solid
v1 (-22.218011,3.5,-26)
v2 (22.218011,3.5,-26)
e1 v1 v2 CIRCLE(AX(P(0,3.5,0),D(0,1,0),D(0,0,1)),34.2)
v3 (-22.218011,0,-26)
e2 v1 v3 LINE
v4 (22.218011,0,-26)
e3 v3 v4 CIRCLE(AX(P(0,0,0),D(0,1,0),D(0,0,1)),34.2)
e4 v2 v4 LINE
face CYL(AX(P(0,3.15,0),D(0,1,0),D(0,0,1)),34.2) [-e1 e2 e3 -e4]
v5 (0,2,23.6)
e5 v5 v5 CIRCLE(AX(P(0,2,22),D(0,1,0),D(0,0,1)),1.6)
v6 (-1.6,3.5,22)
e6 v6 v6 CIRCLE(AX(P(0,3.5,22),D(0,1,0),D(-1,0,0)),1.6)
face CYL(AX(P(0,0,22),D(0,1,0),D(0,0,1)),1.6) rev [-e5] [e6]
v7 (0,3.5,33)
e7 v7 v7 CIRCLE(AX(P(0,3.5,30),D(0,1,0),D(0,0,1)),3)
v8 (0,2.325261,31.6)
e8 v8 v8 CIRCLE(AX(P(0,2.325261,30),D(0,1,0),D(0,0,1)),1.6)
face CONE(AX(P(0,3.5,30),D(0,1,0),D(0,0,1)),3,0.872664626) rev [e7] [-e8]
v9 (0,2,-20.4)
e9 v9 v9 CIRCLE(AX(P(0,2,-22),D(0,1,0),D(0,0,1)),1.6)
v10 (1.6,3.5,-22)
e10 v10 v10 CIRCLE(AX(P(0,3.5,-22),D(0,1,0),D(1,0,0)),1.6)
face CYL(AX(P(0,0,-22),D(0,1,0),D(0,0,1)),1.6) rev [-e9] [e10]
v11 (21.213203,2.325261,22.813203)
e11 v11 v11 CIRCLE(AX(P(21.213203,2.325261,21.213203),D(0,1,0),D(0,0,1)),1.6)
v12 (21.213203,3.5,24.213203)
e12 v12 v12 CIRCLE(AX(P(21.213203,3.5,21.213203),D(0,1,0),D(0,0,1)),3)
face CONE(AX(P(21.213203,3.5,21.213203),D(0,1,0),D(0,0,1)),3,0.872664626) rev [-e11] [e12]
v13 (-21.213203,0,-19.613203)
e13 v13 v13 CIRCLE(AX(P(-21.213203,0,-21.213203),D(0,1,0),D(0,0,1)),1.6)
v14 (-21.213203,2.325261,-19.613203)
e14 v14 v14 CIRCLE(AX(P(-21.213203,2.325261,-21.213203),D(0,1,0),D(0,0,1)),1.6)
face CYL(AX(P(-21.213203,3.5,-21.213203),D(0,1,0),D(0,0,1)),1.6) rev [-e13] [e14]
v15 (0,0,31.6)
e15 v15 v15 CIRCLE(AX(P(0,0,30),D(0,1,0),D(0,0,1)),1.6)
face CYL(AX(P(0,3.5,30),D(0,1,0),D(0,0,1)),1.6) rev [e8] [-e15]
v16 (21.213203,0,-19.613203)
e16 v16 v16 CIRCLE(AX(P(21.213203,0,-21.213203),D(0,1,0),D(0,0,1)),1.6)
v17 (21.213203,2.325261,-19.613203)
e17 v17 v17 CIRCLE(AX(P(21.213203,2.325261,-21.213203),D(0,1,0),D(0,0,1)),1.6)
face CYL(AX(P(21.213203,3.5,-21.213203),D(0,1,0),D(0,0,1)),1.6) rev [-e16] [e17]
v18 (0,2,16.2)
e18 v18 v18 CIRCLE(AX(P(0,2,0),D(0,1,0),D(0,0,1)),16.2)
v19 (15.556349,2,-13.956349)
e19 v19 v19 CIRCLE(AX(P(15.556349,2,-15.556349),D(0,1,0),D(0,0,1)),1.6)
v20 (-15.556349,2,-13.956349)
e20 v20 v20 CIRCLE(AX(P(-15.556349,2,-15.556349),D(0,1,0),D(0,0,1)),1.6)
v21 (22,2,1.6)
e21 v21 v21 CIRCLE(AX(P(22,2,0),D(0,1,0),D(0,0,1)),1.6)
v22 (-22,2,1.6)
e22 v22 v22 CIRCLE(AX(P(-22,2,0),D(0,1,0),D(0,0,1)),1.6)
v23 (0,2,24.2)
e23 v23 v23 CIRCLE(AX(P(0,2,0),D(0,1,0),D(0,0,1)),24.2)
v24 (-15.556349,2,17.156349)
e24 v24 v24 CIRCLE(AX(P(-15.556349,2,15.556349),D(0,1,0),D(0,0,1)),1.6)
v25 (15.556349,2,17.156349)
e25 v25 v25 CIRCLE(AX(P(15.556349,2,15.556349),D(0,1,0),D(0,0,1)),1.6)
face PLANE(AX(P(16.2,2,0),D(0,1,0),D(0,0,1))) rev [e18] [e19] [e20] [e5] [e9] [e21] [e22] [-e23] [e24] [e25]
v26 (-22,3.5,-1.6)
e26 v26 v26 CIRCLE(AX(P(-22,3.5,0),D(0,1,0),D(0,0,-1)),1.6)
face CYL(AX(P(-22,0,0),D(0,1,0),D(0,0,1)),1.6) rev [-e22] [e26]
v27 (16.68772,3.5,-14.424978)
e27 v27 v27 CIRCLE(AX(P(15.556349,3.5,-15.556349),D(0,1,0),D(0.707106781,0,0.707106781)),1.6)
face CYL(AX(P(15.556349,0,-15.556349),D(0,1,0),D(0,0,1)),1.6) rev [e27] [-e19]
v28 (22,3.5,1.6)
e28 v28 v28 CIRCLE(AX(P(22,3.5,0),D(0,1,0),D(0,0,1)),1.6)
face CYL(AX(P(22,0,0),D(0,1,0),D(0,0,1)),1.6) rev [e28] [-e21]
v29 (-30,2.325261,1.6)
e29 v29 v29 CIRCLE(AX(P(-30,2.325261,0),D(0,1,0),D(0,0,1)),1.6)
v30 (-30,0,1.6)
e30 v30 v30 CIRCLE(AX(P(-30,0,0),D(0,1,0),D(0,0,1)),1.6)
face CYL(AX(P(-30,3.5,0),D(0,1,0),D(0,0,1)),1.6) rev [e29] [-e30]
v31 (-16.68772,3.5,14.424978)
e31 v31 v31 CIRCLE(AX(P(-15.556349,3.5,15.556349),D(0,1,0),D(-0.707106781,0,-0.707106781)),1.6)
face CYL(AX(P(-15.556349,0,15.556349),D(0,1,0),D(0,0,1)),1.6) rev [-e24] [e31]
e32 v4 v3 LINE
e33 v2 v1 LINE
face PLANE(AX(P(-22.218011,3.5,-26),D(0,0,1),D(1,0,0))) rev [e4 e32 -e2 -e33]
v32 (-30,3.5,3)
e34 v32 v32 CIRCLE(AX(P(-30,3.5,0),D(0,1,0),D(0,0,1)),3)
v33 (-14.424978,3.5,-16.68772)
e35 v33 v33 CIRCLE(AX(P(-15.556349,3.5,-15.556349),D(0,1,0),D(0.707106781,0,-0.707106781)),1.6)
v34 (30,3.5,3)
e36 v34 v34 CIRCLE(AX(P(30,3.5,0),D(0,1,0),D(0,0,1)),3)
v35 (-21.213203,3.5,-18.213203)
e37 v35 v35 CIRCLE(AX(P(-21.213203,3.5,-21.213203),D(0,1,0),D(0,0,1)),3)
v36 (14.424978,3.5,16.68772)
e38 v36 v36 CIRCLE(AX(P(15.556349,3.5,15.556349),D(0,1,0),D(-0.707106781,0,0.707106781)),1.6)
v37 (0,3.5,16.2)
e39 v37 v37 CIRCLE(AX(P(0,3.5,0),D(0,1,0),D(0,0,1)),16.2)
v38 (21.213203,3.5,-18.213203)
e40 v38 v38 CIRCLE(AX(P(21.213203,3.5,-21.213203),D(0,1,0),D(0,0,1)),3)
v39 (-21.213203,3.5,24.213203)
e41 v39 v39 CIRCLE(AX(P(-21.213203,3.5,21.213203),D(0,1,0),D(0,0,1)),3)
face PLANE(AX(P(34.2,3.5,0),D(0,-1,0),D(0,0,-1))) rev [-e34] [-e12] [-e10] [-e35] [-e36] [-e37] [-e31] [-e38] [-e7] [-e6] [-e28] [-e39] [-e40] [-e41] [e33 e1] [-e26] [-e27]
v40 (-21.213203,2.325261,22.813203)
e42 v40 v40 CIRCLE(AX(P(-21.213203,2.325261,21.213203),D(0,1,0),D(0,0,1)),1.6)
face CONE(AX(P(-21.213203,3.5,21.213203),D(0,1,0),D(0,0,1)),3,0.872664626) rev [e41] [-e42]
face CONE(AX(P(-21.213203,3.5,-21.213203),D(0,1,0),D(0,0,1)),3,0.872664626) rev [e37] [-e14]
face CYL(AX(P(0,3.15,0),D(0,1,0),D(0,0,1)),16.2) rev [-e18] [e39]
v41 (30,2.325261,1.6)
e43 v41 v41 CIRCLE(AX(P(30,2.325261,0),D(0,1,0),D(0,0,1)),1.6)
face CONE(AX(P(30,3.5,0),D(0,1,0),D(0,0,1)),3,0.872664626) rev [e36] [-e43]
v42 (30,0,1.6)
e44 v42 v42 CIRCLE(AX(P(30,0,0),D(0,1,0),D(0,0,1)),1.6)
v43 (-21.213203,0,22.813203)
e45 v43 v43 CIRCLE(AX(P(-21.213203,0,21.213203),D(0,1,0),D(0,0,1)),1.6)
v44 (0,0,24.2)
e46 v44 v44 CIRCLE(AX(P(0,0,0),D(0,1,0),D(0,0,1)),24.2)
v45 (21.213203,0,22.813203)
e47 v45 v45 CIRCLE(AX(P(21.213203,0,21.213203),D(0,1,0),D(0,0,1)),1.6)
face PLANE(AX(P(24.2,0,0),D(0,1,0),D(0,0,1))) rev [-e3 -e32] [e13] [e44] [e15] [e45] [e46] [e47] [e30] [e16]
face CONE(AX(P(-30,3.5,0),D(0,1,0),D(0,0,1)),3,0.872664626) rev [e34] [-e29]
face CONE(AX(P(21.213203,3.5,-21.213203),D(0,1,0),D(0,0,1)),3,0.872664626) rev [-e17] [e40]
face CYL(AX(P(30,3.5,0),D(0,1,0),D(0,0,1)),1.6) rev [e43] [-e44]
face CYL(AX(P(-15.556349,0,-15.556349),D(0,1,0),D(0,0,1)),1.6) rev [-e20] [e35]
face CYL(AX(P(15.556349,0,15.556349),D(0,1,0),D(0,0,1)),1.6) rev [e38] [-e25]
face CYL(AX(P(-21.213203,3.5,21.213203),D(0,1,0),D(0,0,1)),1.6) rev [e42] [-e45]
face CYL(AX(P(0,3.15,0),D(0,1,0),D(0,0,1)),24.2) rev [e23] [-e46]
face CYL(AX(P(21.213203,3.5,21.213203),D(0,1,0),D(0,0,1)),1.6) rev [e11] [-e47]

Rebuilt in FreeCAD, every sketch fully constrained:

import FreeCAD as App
import Part
import Sketcher

V = App.Vector


def add_polygon(sketch, points):
    """Adds a closed chain of lines whose ends are joined by coincident constraints."""
    first, n = sketch.GeometryCount, len(points)
    for a, b in zip(points, points[1:] + points[:1]):
        sketch.addGeometry(Part.LineSegment(App.Vector(*a, 0), App.Vector(*b, 0)), False)
    for i in range(n):
        sketch.addConstraint(Sketcher.Constraint("Coincident", first + i, 2, first + (i + 1) % n, 1))

doc = App.newDocument("Part")
params = doc.addObject("Spreadsheet::Sheet", "Params")
for row, (alias, value) in enumerate([
    ("sketch1_width", "18 mm"),
    ("sketch1_width2", "8 mm"),
    ("sketch1_height", "2 mm"),
    ("sketch1_height2", "3.5 mm"),
    ("revolution_angle", "360 deg"),
    ("sketch2_diameter", "3.2 mm"),
    ("sketch3_diameter", "3.2 mm"),
    ("hole_diameter", "3.2 mm"),
    ("hole_csink_diameter", "6 mm"),
    ("sketch4_height", "8.2 mm"),
], start=1):
    params.set(f"A{row}", alias)
    params.set(f"B{row}", "=" + value)
    params.setAlias(f"B{row}", alias)

body = doc.addObject("PartDesign::Body", "Body")

# Sketch on XY plane
sketch1 = body.newObject("Sketcher::SketchObject", "Sketch")
sketch1.AttachmentSupport = (doc.getObject("XY_Plane"), [""])
sketch1.MapMode = "FlatFace"
add_polygon(sketch1, [(34.2, 0), (34.2, 3.5), (16.2, 3.5), (16.2, 2), (24.2, 2), (24.2, 0)])  # lines 0-5
sketch1.addConstraint([
    Sketcher.Constraint("Vertical", 0),
    Sketcher.Constraint("Horizontal", 1),
    Sketcher.Constraint("Vertical", 2),
    Sketcher.Constraint("Horizontal", 3),
    Sketcher.Constraint("Vertical", 4),
    Sketcher.Constraint("Horizontal", 5),
    Sketcher.Constraint("PointOnObject", 4, 2, -1),
    Sketcher.Constraint("DistanceX", 1, 2, 1, 1, 18.0),
    Sketcher.Constraint("DistanceX", 3, 1, 3, 2, 8.0),
    Sketcher.Constraint("DistanceY", 4, 2, 4, 1, 2.0),
    Sketcher.Constraint("DistanceY", 0, 1, 0, 2, 3.5),
    Sketcher.Constraint("DistanceX", -1, 1, 0, 2, 34.2),
])
sketch1.setExpression("Constraints[13]", "Params.sketch1_width")
sketch1.setExpression("Constraints[14]", "Params.sketch1_width2")
sketch1.setExpression("Constraints[15]", "Params.sketch1_height")
sketch1.setExpression("Constraints[16]", "Params.sketch1_height2")
revolution = body.newObject("PartDesign::Revolution", "Revolution")
revolution.Profile = sketch1
revolution.ReferenceAxis = (sketch1, ["V_Axis"])
revolution.setExpression("Angle", "Params.revolution_angle")

# Sketch on XZ plane
sketch2 = body.newObject("Sketcher::SketchObject", "Sketch001")
sketch2.AttachmentSupport = (doc.getObject("XZ_Plane"), [""])
sketch2.MapMode = "FlatFace"
sketch2.AttachmentOffset = App.Placement(V(0, 0, -3.5), App.Rotation())
sketch2.addGeometry(Part.Circle(V(22, 0, 0), V(0, 0, 1), 1.6), False)
sketch2.addConstraint([
    Sketcher.Constraint("PointOnObject", 0, 3, -1),
    Sketcher.Constraint("Diameter", 0, 3.2),
    Sketcher.Constraint("DistanceX", -1, 1, 0, 3, 22.0),
])
sketch2.setExpression("Constraints[1]", "Params.sketch2_diameter")
pocket1 = body.newObject("PartDesign::Pocket", "Pocket")
pocket1.Profile = sketch2
pocket1.Type = "ThroughAll"
pocket1.Reversed = True

# Sketch on XZ plane
sketch3 = body.newObject("Sketcher::SketchObject", "Sketch002")
sketch3.AttachmentSupport = (doc.getObject("XZ_Plane"), [""])
sketch3.MapMode = "FlatFace"
sketch3.AttachmentOffset = App.Placement(V(0, 0, -3.5), App.Rotation())
sketch3.addGeometry(Part.Circle(V(30, 0, 0), V(0, 0, 1), 1.6), False)
sketch3.addConstraint([
    Sketcher.Constraint("PointOnObject", 0, 3, -1),
    Sketcher.Constraint("Diameter", 0, 3.2),
    Sketcher.Constraint("DistanceX", -1, 1, 0, 3, 30.0),
])
sketch3.setExpression("Constraints[1]", "Params.sketch3_diameter")
doc.recompute()
hole = body.newObject("PartDesign::Hole", "Hole")
hole.Profile = sketch3
hole.ThreadType = "None"
hole.setExpression("Diameter", "Params.hole_diameter")
hole.DepthType = "ThroughAll"
hole.HoleCutType = "Countersink"
hole.setExpression("HoleCutDiameter", "Params.hole_csink_diameter")
hole.HoleCutCountersinkAngle = 100
hole.Reversed = True
doc.recompute()

polarpattern = body.newObject("PartDesign::PolarPattern", "PolarPattern")
polarpattern.Originals = [pocket1, hole]
polarpattern.Axis = (doc.getObject("Y_Axis"), [""])
polarpattern.Angle = 360
polarpattern.Occurrences = 8
body.Tip = polarpattern

# Sketch on XZ plane
sketch4 = body.newObject("Sketcher::SketchObject", "Sketch003")
sketch4.AttachmentSupport = (doc.getObject("XZ_Plane"), [""])
sketch4.MapMode = "FlatFace"
add_polygon(sketch4, [(22.218011, -34.2), (22.218011, -26), (-22.218011, -26), (-22.218011, -34.2)])  # lines 0-3
sketch4.addConstraint([
    Sketcher.Constraint("Vertical", 0),
    Sketcher.Constraint("Horizontal", 1),
    Sketcher.Constraint("Vertical", 2),
    Sketcher.Constraint("Horizontal", 3),
    Sketcher.Constraint("DistanceY", 0, 1, 0, 2, 8.2),
    Sketcher.Constraint("DistanceY", 0, 2, -1, 1, 26.0),
    Sketcher.Constraint("DistanceX", 1, 2, 1, 1, 44.436021),
    Sketcher.Constraint("DistanceX", -1, 1, 0, 2, 22.218011),
])
sketch4.setExpression("Constraints[8]", "Params.sketch4_height")
pocket2 = body.newObject("PartDesign::Pocket", "Pocket001")
pocket2.Profile = sketch4
pocket2.Type = "ThroughAll"

doc.recompute()
